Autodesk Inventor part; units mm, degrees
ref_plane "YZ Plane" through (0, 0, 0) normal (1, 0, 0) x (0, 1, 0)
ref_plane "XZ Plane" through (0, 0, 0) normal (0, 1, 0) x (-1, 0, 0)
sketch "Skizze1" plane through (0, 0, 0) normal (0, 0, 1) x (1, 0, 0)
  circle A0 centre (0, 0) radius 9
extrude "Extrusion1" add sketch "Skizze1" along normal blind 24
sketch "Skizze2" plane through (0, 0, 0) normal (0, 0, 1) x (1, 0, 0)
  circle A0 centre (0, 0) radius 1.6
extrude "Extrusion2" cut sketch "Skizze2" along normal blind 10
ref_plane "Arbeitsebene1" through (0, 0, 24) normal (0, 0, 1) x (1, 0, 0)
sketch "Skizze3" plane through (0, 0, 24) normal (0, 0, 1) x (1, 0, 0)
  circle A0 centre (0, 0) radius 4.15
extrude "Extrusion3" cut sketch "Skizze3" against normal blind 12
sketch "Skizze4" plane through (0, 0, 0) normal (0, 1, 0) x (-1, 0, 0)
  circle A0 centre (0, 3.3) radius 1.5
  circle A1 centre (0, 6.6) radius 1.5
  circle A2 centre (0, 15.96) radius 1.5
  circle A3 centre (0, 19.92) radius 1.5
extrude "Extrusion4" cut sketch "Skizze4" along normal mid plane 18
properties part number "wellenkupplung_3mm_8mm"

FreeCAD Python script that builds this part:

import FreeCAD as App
import Part
import Sketcher
from FreeCAD import Vector

doc = App.newDocument("Part")
body = doc.addObject("PartDesign::Body", "Body")

sketch1 = doc.addObject("Sketcher::SketchObject", "Sketch")
body.addObject(sketch1)
sketch1.AttachmentSupport = (doc.XY_Plane, [""])
sketch1.MapMode = "FlatFace"
sketch1.addGeometry(Part.Circle(Vector(0, 0, 0), Vector(0, 0, 1), 9), False)
sketch1.addConstraint(Sketcher.Constraint("Coincident", 0, 3, -1, 1))
sketch1.addConstraint(Sketcher.Constraint("Diameter", 0, 18.0))
pad1 = doc.addObject("PartDesign::Pad", "Pad")
body.addObject(pad1)
pad1.Profile = sketch1
pad1.Length = 24

sketch2 = doc.addObject("Sketcher::SketchObject", "Sketch001")
body.addObject(sketch2)
sketch2.AttachmentSupport = (doc.XY_Plane, [""])
sketch2.MapMode = "FlatFace"
sketch2.addGeometry(Part.Circle(Vector(0, 0, 0), Vector(0, 0, 1), 1.6), False)
sketch2.addConstraint(Sketcher.Constraint("Coincident", 0, 3, -1, 1))
sketch2.addConstraint(Sketcher.Constraint("Diameter", 0, 3.2))
pocket1 = doc.addObject("PartDesign::Pocket", "Pocket")
body.addObject(pocket1)
pocket1.Profile = sketch2
pocket1.Length = 10
pocket1.Reversed = True

sketch3 = doc.addObject("Sketcher::SketchObject", "Sketch002")
body.addObject(sketch3)
sketch3.AttachmentSupport = (doc.XY_Plane, [""])
sketch3.MapMode = "FlatFace"
sketch3.AttachmentOffset = App.Placement(Vector(0, 0, 24), App.Rotation())
sketch3.addGeometry(Part.Circle(Vector(0, 0, 0), Vector(0, 0, 1), 4.2), False)
sketch3.addConstraint(Sketcher.Constraint("Coincident", 0, 3, -1, 1))
sketch3.addConstraint(Sketcher.Constraint("Diameter", 0, 8.3))
pocket2 = doc.addObject("PartDesign::Pocket", "Pocket001")
body.addObject(pocket2)
pocket2.Profile = sketch3
pocket2.Length = 12

sketch4 = doc.addObject("Sketcher::SketchObject", "Sketch003")
body.addObject(sketch4)
sketch4.AttachmentSupport = (doc.XZ_Plane, [""])
sketch4.MapMode = "FlatFace"
sketch4.addGeometry(Part.Circle(Vector(0, 3.3, 0), Vector(0, 0, 1), 1.5), False)
sketch4.addGeometry(Part.Circle(Vector(0, 6.6, 0), Vector(0, 0, 1), 1.5), False)
sketch4.addGeometry(Part.Circle(Vector(0, 16, 0), Vector(0, 0, 1), 1.5), False)
sketch4.addGeometry(Part.Circle(Vector(0, 19.9, 0), Vector(0, 0, 1), 1.5), False)
sketch4.addConstraint(Sketcher.Constraint("Equal", 0, 1))
sketch4.addConstraint(Sketcher.Constraint("Equal", 1, 2))
sketch4.addConstraint(Sketcher.Constraint("Equal", 2, 3))
sketch4.addConstraint(Sketcher.Constraint("PointOnObject", 0, 3, -2))
sketch4.addConstraint(Sketcher.Constraint("PointOnObject", 1, 3, -2))
sketch4.addConstraint(Sketcher.Constraint("PointOnObject", 2, 3, -2))
sketch4.addConstraint(Sketcher.Constraint("PointOnObject", 3, 3, -2))
sketch4.addConstraint(Sketcher.Constraint("Diameter", 0, 3.0))
sketch4.addConstraint(Sketcher.Constraint("DistanceY", -1, 1, 0, 3, 3.3))
sketch4.addConstraint(Sketcher.Constraint("DistanceY", -1, 1, 1, 3, 6.6))
sketch4.addConstraint(Sketcher.Constraint("DistanceY", -1, 1, 2, 3, 15.96))
sketch4.addConstraint(Sketcher.Constraint("DistanceY", -1, 1, 3, 3, 19.92))
pocket3 = doc.addObject("PartDesign::Pocket", "Pocket002")
body.addObject(pocket3)
pocket3.Profile = sketch4
pocket3.Length = 18
pocket3.Midplane = True

doc.recompute()
